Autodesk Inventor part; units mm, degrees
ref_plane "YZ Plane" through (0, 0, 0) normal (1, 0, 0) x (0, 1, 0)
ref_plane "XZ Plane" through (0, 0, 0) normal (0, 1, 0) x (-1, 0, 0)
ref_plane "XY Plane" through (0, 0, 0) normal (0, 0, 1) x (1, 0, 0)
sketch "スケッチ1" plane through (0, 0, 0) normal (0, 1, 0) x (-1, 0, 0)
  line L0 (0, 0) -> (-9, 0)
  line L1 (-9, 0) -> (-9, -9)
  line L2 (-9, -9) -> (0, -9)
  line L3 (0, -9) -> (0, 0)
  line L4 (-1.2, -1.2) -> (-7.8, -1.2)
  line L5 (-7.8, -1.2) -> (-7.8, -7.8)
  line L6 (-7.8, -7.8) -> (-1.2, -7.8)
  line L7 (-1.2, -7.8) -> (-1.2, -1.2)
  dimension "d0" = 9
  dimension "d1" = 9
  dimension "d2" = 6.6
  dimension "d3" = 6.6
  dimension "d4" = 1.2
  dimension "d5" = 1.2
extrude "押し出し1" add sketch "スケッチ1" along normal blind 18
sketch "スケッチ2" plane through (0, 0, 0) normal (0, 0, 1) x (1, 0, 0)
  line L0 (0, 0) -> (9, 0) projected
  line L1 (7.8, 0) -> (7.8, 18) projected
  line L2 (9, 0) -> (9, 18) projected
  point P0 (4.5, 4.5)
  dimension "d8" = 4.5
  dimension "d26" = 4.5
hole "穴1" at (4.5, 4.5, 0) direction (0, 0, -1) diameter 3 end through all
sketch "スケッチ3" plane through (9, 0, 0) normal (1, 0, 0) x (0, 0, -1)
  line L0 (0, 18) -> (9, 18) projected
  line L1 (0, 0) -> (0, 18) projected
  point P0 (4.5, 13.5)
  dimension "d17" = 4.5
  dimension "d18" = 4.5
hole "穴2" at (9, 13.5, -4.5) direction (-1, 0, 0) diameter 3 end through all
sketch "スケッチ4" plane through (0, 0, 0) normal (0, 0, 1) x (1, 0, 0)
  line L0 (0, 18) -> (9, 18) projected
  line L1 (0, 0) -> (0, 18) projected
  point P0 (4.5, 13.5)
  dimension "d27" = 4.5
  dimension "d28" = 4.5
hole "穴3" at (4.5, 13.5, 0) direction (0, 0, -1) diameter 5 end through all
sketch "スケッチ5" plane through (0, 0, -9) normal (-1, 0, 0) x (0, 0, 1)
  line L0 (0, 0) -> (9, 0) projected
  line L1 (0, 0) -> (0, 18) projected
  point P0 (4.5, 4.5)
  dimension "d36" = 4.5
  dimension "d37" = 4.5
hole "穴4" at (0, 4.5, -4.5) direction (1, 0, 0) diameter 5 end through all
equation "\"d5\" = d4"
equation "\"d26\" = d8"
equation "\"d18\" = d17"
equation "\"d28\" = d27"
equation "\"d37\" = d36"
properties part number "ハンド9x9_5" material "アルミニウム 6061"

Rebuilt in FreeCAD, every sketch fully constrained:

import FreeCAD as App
import Part
import Sketcher
from FreeCAD import Vector

doc = App.newDocument("Part")
body = doc.addObject("PartDesign::Body", "Body")

sketch1 = body.newObject("Sketcher::SketchObject", "Sketch")
sketch1.AttachmentSupport = (doc.getObject("XZ_Plane"), [""])
sketch1.MapMode = "FlatFace"
sketch1.addGeometry(Part.LineSegment(Vector(0, -9, 0), Vector(0, 0, 0)), False)
sketch1.addGeometry(Part.LineSegment(Vector(0, 0, 0), Vector(9, 0, 0)), False)
sketch1.addGeometry(Part.LineSegment(Vector(9, 0, 0), Vector(9, -9, 0)), False)
sketch1.addGeometry(Part.LineSegment(Vector(9, -9, 0), Vector(0, -9, 0)), False)
sketch1.addGeometry(Part.LineSegment(Vector(7.8, -1.2, 0), Vector(1.2, -1.2, 0)), False)
sketch1.addGeometry(Part.LineSegment(Vector(1.2, -1.2, 0), Vector(1.2, -7.8, 0)), False)
sketch1.addGeometry(Part.LineSegment(Vector(1.2, -7.8, 0), Vector(7.8, -7.8, 0)), False)
sketch1.addGeometry(Part.LineSegment(Vector(7.8, -7.8, 0), Vector(7.8, -1.2, 0)), False)
sketch1.addConstraint(Sketcher.Constraint("Coincident", 0, 2, 1, 1))
sketch1.addConstraint(Sketcher.Constraint("Coincident", 1, 2, 2, 1))
sketch1.addConstraint(Sketcher.Constraint("Coincident", 2, 2, 3, 1))
sketch1.addConstraint(Sketcher.Constraint("Coincident", 3, 2, 0, 1))
sketch1.addConstraint(Sketcher.Constraint("Coincident", 4, 2, 5, 1))
sketch1.addConstraint(Sketcher.Constraint("Coincident", 5, 2, 6, 1))
sketch1.addConstraint(Sketcher.Constraint("Coincident", 6, 2, 7, 1))
sketch1.addConstraint(Sketcher.Constraint("Coincident", 7, 2, 4, 1))
sketch1.addConstraint(Sketcher.Constraint("Vertical", 0))
sketch1.addConstraint(Sketcher.Constraint("Horizontal", 1))
sketch1.addConstraint(Sketcher.Constraint("Vertical", 2))
sketch1.addConstraint(Sketcher.Constraint("Horizontal", 3))
sketch1.addConstraint(Sketcher.Constraint("Horizontal", 4))
sketch1.addConstraint(Sketcher.Constraint("Vertical", 5))
sketch1.addConstraint(Sketcher.Constraint("Horizontal", 6))
sketch1.addConstraint(Sketcher.Constraint("Vertical", 7))
sketch1.addConstraint(Sketcher.Constraint("Coincident", 0, 2, -1, 1))
sketch1.addConstraint(Sketcher.Constraint("Equal", 3, 0))
sketch1.addConstraint(Sketcher.Constraint("Equal", 6, 5))
sketch1.addConstraint(Sketcher.Constraint("DistanceX", 1, 1, 1, 2, 9.0))
sketch1.addConstraint(Sketcher.Constraint("DistanceX", 4, 2, 4, 1, 6.6))
sketch1.addConstraint(Sketcher.Constraint("DistanceX", -1, 1, 4, 2, 1.2))
sketch1.addConstraint(Sketcher.Constraint("DistanceY", 4, 2, -1, 1, 1.2))
pad1 = body.newObject("PartDesign::Pad", "Pad")
pad1.Profile = sketch1
pad1.Length = 18
pad1.Reversed = True

sketch2 = body.newObject("Sketcher::SketchObject", "Sketch001")
sketch2.AttachmentSupport = (doc.getObject("XY_Plane"), [""])
sketch2.MapMode = "FlatFace"
sketch2.addGeometry(Part.Circle(Vector(4.5, 4.5, 0), Vector(0, 0, 1), 1.5), False)
sketch2.addConstraint(Sketcher.Constraint("Diameter", 0, 3.0))
sketch2.addConstraint(Sketcher.Constraint("DistanceX", -1, 1, 0, 3, 4.5))
sketch2.addConstraint(Sketcher.Constraint("DistanceY", -1, 1, 0, 3, 4.5))
doc.recompute()
hole = body.newObject("PartDesign::Hole", "Hole")
hole.Profile = sketch2
hole.ThreadType = "None"
hole.Diameter = 3
hole.DepthType = "ThroughAll"

sketch3 = body.newObject("Sketcher::SketchObject", "Sketch002")
sketch3.AttachmentSupport = (doc.getObject("YZ_Plane"), [""])
sketch3.MapMode = "FlatFace"
sketch3.AttachmentOffset = App.Placement(Vector(0, 0, 9), App.Rotation())
sketch3.addGeometry(Part.Circle(Vector(13.5, -4.5, 0), Vector(0, 0, 1), 1.5), False)
sketch3.addConstraint(Sketcher.Constraint("Diameter", 0, 3.0))
sketch3.addConstraint(Sketcher.Constraint("DistanceX", -1, 1, 0, 3, 13.5))
sketch3.addConstraint(Sketcher.Constraint("DistanceY", 0, 3, -1, 1, 4.5))
doc.recompute()
hole2 = body.newObject("PartDesign::Hole", "Hole001")
hole2.Profile = sketch3
hole2.ThreadType = "None"
hole2.Diameter = 3
hole2.DepthType = "ThroughAll"

sketch4 = body.newObject("Sketcher::SketchObject", "Sketch003")
sketch4.AttachmentSupport = (doc.getObject("XY_Plane"), [""])
sketch4.MapMode = "FlatFace"
sketch4.addGeometry(Part.Circle(Vector(4.5, 13.5, 0), Vector(0, 0, 1), 2.5), False)
sketch4.addConstraint(Sketcher.Constraint("Diameter", 0, 5.0))
sketch4.addConstraint(Sketcher.Constraint("DistanceX", -1, 1, 0, 3, 4.5))
sketch4.addConstraint(Sketcher.Constraint("DistanceY", -1, 1, 0, 3, 13.5))
doc.recompute()
hole3 = body.newObject("PartDesign::Hole", "Hole002")
hole3.Profile = sketch4
hole3.ThreadType = "None"
hole3.Diameter = 5
hole3.DepthType = "ThroughAll"

sketch5 = body.newObject("Sketcher::SketchObject", "Sketch004")
sketch5.AttachmentSupport = (doc.getObject("YZ_Plane"), [""])
sketch5.MapMode = "FlatFace"
sketch5.addGeometry(Part.Circle(Vector(4.5, -4.5, 0), Vector(0, 0, 1), 2.5), False)
sketch5.addConstraint(Sketcher.Constraint("Diameter", 0, 5.0))
sketch5.addConstraint(Sketcher.Constraint("DistanceX", -1, 1, 0, 3, 4.5))
sketch5.addConstraint(Sketcher.Constraint("DistanceY", 0, 3, -1, 1, 4.5))
doc.recompute()
hole4 = body.newObject("PartDesign::Hole", "Hole003")
hole4.Profile = sketch5
hole4.ThreadType = "None"
hole4.Diameter = 5
hole4.DepthType = "ThroughAll"
hole4.Reversed = True

doc.recompute()
